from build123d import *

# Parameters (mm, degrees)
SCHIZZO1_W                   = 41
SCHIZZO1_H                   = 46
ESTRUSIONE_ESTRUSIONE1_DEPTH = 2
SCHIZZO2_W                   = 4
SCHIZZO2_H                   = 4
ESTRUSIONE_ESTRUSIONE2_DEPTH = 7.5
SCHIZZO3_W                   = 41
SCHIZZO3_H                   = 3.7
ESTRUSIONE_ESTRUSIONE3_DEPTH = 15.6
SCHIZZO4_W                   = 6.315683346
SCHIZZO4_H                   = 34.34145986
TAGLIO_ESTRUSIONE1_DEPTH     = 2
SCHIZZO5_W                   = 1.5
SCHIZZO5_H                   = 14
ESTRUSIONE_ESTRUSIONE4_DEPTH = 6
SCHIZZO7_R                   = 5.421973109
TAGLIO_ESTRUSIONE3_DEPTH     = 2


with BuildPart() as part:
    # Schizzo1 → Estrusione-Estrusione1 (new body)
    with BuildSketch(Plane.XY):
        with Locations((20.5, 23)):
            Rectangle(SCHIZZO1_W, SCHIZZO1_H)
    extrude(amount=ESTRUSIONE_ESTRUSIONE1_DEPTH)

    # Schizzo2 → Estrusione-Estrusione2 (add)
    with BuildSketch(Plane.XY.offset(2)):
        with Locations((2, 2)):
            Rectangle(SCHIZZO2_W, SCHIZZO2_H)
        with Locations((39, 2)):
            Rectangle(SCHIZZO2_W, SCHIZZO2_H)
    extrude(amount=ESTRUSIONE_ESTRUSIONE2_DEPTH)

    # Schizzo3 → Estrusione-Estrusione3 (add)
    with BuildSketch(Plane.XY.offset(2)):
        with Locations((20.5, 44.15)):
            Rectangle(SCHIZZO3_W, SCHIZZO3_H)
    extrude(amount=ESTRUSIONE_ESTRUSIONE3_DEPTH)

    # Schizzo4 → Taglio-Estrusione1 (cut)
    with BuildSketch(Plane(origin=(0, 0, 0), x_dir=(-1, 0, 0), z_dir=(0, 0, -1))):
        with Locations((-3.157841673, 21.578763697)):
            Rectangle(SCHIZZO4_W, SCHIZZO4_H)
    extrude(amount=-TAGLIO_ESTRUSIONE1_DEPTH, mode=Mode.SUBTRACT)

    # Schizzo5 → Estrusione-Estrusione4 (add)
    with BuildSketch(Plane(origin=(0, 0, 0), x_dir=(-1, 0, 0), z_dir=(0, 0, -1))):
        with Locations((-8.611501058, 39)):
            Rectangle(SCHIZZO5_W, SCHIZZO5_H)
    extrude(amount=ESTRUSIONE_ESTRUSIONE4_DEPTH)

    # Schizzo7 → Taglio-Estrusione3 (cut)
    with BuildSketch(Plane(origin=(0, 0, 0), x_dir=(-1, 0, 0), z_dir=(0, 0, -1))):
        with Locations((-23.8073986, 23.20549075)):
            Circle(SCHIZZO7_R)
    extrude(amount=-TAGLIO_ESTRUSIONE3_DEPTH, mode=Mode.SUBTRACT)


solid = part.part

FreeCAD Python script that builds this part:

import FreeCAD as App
import Part
import Sketcher

V = App.Vector

doc = App.newDocument("Part")
body = doc.addObject("PartDesign::Body", "Body")

sketch1 = doc.addObject("Sketcher::SketchObject", "Sketch")
body.addObject(sketch1)
sketch1.AttachmentSupport = (doc.XY_Plane, [""])
sketch1.MapMode = "FlatFace"
sketch1.addGeometry([
    Part.LineSegment(V(0, 46, 0), V(0, 0, 0)),
    Part.LineSegment(V(0, 0, 0), V(41, 0, 0)),
    Part.LineSegment(V(41, 0, 0), V(41, 46, 0)),
    Part.LineSegment(V(41, 46, 0), V(0, 46, 0)),
], False)
sketch1.addConstraint([
    Sketcher.Constraint("Coincident", 0, 2, 1, 1),
    Sketcher.Constraint("Coincident", 1, 2, 2, 1),
    Sketcher.Constraint("Coincident", 2, 2, 3, 1),
    Sketcher.Constraint("Coincident", 3, 2, 0, 1),
    Sketcher.Constraint("Vertical", 0),
    Sketcher.Constraint("Horizontal", 1),
    Sketcher.Constraint("Vertical", 2),
    Sketcher.Constraint("Horizontal", 3),
    Sketcher.Constraint("Coincident", 0, 2, -1, 1),
    Sketcher.Constraint("DistanceX", 1, 1, 1, 2, 41.0),
    Sketcher.Constraint("DistanceY", 0, 2, 0, 1, 46.0),
])
pad1 = doc.addObject("PartDesign::Pad", "Pad")
body.addObject(pad1)
pad1.Profile = sketch1
pad1.Length = 2

sketch2 = doc.addObject("Sketcher::SketchObject", "Sketch001")
body.addObject(sketch2)
sketch2.AttachmentSupport = (doc.XY_Plane, [""])
sketch2.MapMode = "FlatFace"
sketch2.AttachmentOffset = App.Placement(V(0, 0, 2), App.Rotation())
sketch2.addGeometry([
    Part.LineSegment(V(0, 4, 0), V(0, 0, 0)),
    Part.LineSegment(V(0, 0, 0), V(4, 0, 0)),
    Part.LineSegment(V(4, 0, 0), V(4, 4, 0)),
    Part.LineSegment(V(4, 4, 0), V(0, 4, 0)),
    Part.LineSegment(V(37, 4, 0), V(37, 0, 0)),
    Part.LineSegment(V(37, 0, 0), V(41, 0, 0)),
    Part.LineSegment(V(41, 0, 0), V(41, 4, 0)),
    Part.LineSegment(V(41, 4, 0), V(37, 4, 0)),
], False)
sketch2.addConstraint([
    Sketcher.Constraint("Coincident", 0, 2, 1, 1),
    Sketcher.Constraint("Coincident", 1, 2, 2, 1),
    Sketcher.Constraint("Coincident", 2, 2, 3, 1),
    Sketcher.Constraint("Coincident", 3, 2, 0, 1),
    Sketcher.Constraint("Coincident", 4, 2, 5, 1),
    Sketcher.Constraint("Coincident", 5, 2, 6, 1),
    Sketcher.Constraint("Coincident", 6, 2, 7, 1),
    Sketcher.Constraint("Coincident", 7, 2, 4, 1),
    Sketcher.Constraint("Vertical", 0),
    Sketcher.Constraint("Horizontal", 1),
    Sketcher.Constraint("Vertical", 2),
    Sketcher.Constraint("Horizontal", 3),
    Sketcher.Constraint("Vertical", 4),
    Sketcher.Constraint("Horizontal", 5),
    Sketcher.Constraint("Vertical", 6),
    Sketcher.Constraint("Horizontal", 7),
    Sketcher.Constraint("Coincident", 0, 2, -1, 1),
    Sketcher.Constraint("PointOnObject", 4, 2, -1),
    Sketcher.Constraint("Horizontal", 3, 2, 6, 2),
    Sketcher.Constraint("Equal", 3, 5),
    Sketcher.Constraint("Equal", 7, 0),
    Sketcher.Constraint("DistanceX", 1, 1, 1, 2, 4.0),
    Sketcher.Constraint("DistanceX", -1, 1, 4, 2, 37.0),
])
pad2 = doc.addObject("PartDesign::Pad", "Pad001")
body.addObject(pad2)
pad2.Profile = sketch2
pad2.Length = 7.5

sketch3 = doc.addObject("Sketcher::SketchObject", "Sketch002")
body.addObject(sketch3)
sketch3.AttachmentSupport = (doc.XY_Plane, [""])
sketch3.MapMode = "FlatFace"
sketch3.AttachmentOffset = App.Placement(V(0, 0, 2), App.Rotation())
sketch3.addGeometry([
    Part.LineSegment(V(0, 46, 0), V(0, 42.3, 0)),
    Part.LineSegment(V(0, 42.3, 0), V(41, 42.3, 0)),
    Part.LineSegment(V(41, 42.3, 0), V(41, 46, 0)),
    Part.LineSegment(V(41, 46, 0), V(0, 46, 0)),
], False)
sketch3.addConstraint([
    Sketcher.Constraint("Coincident", 0, 2, 1, 1),
    Sketcher.Constraint("Coincident", 1, 2, 2, 1),
    Sketcher.Constraint("Coincident", 2, 2, 3, 1),
    Sketcher.Constraint("Coincident", 3, 2, 0, 1),
    Sketcher.Constraint("Vertical", 0),
    Sketcher.Constraint("Horizontal", 1),
    Sketcher.Constraint("Vertical", 2),
    Sketcher.Constraint("Horizontal", 3),
    Sketcher.Constraint("PointOnObject", 0, 2, -2),
    Sketcher.Constraint("DistanceX", 1, 1, 1, 2, 41.0),
    Sketcher.Constraint("DistanceY", 0, 2, 0, 1, 3.7),
    Sketcher.Constraint("DistanceY", -1, 1, 2, 2, 46.0),
])
pad3 = doc.addObject("PartDesign::Pad", "Pad002")
body.addObject(pad3)
pad3.Profile = sketch3
pad3.Length = 15.6

sketch4 = doc.addObject("Sketcher::SketchObject", "Sketch003")
body.addObject(sketch4)
sketch4.AttachmentSupport = (doc.XY_Plane, [""])
sketch4.MapMode = "FlatFace"
sketch4.addGeometry([
    Part.LineSegment(V(6, 39, 0), V(6, 4, 0)),
    Part.LineSegment(V(6, 4, 0), V(0, 4, 0)),
    Part.LineSegment(V(0, 4, 0), V(0, 39, 0)),
    Part.LineSegment(V(0, 39, 0), V(6, 39, 0)),
], False)
sketch4.addConstraint([
    Sketcher.Constraint("Coincident", 0, 2, 1, 1),
    Sketcher.Constraint("Coincident", 1, 2, 2, 1),
    Sketcher.Constraint("Coincident", 2, 2, 3, 1),
    Sketcher.Constraint("Coincident", 3, 2, 0, 1),
    Sketcher.Constraint("Vertical", 0),
    Sketcher.Constraint("Horizontal", 1),
    Sketcher.Constraint("Vertical", 2),
    Sketcher.Constraint("Horizontal", 3),
    Sketcher.Constraint("PointOnObject", 1, 2, -2),
    Sketcher.Constraint("DistanceY", 0, 2, 0, 1, 34.34146),
    Sketcher.Constraint("DistanceX", 1, 2, 1, 1, 6.315683),
    Sketcher.Constraint("DistanceY", -1, 1, 0, 2, 4.408034),
])
pocket1 = doc.addObject("PartDesign::Pocket", "Pocket")
body.addObject(pocket1)
pocket1.Profile = sketch4
pocket1.Length = 2
pocket1.Reversed = True

sketch5 = doc.addObject("Sketcher::SketchObject", "Sketch004")
body.addObject(sketch5)
sketch5.AttachmentSupport = (doc.XY_Plane, [""])
sketch5.MapMode = "FlatFace"
sketch5.addGeometry([
    Part.LineSegment(V(9.4, 46, 0), V(9.4, 32, 0)),
    Part.LineSegment(V(9.4, 32, 0), V(7.9, 32, 0)),
    Part.LineSegment(V(7.9, 32, 0), V(7.9, 46, 0)),
    Part.LineSegment(V(7.9, 46, 0), V(9.4, 46, 0)),
], False)
sketch5.addConstraint([
    Sketcher.Constraint("Coincident", 0, 2, 1, 1),
    Sketcher.Constraint("Coincident", 1, 2, 2, 1),
    Sketcher.Constraint("Coincident", 2, 2, 3, 1),
    Sketcher.Constraint("Coincident", 3, 2, 0, 1),
    Sketcher.Constraint("Vertical", 0),
    Sketcher.Constraint("Horizontal", 1),
    Sketcher.Constraint("Vertical", 2),
    Sketcher.Constraint("Horizontal", 3),
    Sketcher.Constraint("DistanceY", 0, 2, 0, 1, 14.0),
    Sketcher.Constraint("DistanceX", 1, 2, 1, 1, 1.5),
    Sketcher.Constraint("DistanceY", -1, 1, 0, 2, 32.0),
    Sketcher.Constraint("DistanceX", -1, 1, 0, 2, 9.361501),
])
pad4 = doc.addObject("PartDesign::Pad", "Pad003")
body.addObject(pad4)
pad4.Profile = sketch5
pad4.Length = 6
pad4.Reversed = True

sketch6 = doc.addObject("Sketcher::SketchObject", "Sketch005")
body.addObject(sketch6)
sketch6.AttachmentSupport = (doc.XY_Plane, [""])
sketch6.MapMode = "FlatFace"
sketch6.addGeometry(Part.Circle(V(24, 23, 0), V(0, 0, 1), 5), False)
sketch6.addConstraint([
    Sketcher.Constraint("Diameter", 0, 10.843946),
    Sketcher.Constraint("DistanceX", -1, 1, 0, 3, 23.807399),
    Sketcher.Constraint("DistanceY", -1, 1, 0, 3, 23.205491),
])
pocket2 = doc.addObject("PartDesign::Pocket", "Pocket001")
body.addObject(pocket2)
pocket2.Profile = sketch6
pocket2.Length = 2
pocket2.Reversed = True

doc.recompute()
